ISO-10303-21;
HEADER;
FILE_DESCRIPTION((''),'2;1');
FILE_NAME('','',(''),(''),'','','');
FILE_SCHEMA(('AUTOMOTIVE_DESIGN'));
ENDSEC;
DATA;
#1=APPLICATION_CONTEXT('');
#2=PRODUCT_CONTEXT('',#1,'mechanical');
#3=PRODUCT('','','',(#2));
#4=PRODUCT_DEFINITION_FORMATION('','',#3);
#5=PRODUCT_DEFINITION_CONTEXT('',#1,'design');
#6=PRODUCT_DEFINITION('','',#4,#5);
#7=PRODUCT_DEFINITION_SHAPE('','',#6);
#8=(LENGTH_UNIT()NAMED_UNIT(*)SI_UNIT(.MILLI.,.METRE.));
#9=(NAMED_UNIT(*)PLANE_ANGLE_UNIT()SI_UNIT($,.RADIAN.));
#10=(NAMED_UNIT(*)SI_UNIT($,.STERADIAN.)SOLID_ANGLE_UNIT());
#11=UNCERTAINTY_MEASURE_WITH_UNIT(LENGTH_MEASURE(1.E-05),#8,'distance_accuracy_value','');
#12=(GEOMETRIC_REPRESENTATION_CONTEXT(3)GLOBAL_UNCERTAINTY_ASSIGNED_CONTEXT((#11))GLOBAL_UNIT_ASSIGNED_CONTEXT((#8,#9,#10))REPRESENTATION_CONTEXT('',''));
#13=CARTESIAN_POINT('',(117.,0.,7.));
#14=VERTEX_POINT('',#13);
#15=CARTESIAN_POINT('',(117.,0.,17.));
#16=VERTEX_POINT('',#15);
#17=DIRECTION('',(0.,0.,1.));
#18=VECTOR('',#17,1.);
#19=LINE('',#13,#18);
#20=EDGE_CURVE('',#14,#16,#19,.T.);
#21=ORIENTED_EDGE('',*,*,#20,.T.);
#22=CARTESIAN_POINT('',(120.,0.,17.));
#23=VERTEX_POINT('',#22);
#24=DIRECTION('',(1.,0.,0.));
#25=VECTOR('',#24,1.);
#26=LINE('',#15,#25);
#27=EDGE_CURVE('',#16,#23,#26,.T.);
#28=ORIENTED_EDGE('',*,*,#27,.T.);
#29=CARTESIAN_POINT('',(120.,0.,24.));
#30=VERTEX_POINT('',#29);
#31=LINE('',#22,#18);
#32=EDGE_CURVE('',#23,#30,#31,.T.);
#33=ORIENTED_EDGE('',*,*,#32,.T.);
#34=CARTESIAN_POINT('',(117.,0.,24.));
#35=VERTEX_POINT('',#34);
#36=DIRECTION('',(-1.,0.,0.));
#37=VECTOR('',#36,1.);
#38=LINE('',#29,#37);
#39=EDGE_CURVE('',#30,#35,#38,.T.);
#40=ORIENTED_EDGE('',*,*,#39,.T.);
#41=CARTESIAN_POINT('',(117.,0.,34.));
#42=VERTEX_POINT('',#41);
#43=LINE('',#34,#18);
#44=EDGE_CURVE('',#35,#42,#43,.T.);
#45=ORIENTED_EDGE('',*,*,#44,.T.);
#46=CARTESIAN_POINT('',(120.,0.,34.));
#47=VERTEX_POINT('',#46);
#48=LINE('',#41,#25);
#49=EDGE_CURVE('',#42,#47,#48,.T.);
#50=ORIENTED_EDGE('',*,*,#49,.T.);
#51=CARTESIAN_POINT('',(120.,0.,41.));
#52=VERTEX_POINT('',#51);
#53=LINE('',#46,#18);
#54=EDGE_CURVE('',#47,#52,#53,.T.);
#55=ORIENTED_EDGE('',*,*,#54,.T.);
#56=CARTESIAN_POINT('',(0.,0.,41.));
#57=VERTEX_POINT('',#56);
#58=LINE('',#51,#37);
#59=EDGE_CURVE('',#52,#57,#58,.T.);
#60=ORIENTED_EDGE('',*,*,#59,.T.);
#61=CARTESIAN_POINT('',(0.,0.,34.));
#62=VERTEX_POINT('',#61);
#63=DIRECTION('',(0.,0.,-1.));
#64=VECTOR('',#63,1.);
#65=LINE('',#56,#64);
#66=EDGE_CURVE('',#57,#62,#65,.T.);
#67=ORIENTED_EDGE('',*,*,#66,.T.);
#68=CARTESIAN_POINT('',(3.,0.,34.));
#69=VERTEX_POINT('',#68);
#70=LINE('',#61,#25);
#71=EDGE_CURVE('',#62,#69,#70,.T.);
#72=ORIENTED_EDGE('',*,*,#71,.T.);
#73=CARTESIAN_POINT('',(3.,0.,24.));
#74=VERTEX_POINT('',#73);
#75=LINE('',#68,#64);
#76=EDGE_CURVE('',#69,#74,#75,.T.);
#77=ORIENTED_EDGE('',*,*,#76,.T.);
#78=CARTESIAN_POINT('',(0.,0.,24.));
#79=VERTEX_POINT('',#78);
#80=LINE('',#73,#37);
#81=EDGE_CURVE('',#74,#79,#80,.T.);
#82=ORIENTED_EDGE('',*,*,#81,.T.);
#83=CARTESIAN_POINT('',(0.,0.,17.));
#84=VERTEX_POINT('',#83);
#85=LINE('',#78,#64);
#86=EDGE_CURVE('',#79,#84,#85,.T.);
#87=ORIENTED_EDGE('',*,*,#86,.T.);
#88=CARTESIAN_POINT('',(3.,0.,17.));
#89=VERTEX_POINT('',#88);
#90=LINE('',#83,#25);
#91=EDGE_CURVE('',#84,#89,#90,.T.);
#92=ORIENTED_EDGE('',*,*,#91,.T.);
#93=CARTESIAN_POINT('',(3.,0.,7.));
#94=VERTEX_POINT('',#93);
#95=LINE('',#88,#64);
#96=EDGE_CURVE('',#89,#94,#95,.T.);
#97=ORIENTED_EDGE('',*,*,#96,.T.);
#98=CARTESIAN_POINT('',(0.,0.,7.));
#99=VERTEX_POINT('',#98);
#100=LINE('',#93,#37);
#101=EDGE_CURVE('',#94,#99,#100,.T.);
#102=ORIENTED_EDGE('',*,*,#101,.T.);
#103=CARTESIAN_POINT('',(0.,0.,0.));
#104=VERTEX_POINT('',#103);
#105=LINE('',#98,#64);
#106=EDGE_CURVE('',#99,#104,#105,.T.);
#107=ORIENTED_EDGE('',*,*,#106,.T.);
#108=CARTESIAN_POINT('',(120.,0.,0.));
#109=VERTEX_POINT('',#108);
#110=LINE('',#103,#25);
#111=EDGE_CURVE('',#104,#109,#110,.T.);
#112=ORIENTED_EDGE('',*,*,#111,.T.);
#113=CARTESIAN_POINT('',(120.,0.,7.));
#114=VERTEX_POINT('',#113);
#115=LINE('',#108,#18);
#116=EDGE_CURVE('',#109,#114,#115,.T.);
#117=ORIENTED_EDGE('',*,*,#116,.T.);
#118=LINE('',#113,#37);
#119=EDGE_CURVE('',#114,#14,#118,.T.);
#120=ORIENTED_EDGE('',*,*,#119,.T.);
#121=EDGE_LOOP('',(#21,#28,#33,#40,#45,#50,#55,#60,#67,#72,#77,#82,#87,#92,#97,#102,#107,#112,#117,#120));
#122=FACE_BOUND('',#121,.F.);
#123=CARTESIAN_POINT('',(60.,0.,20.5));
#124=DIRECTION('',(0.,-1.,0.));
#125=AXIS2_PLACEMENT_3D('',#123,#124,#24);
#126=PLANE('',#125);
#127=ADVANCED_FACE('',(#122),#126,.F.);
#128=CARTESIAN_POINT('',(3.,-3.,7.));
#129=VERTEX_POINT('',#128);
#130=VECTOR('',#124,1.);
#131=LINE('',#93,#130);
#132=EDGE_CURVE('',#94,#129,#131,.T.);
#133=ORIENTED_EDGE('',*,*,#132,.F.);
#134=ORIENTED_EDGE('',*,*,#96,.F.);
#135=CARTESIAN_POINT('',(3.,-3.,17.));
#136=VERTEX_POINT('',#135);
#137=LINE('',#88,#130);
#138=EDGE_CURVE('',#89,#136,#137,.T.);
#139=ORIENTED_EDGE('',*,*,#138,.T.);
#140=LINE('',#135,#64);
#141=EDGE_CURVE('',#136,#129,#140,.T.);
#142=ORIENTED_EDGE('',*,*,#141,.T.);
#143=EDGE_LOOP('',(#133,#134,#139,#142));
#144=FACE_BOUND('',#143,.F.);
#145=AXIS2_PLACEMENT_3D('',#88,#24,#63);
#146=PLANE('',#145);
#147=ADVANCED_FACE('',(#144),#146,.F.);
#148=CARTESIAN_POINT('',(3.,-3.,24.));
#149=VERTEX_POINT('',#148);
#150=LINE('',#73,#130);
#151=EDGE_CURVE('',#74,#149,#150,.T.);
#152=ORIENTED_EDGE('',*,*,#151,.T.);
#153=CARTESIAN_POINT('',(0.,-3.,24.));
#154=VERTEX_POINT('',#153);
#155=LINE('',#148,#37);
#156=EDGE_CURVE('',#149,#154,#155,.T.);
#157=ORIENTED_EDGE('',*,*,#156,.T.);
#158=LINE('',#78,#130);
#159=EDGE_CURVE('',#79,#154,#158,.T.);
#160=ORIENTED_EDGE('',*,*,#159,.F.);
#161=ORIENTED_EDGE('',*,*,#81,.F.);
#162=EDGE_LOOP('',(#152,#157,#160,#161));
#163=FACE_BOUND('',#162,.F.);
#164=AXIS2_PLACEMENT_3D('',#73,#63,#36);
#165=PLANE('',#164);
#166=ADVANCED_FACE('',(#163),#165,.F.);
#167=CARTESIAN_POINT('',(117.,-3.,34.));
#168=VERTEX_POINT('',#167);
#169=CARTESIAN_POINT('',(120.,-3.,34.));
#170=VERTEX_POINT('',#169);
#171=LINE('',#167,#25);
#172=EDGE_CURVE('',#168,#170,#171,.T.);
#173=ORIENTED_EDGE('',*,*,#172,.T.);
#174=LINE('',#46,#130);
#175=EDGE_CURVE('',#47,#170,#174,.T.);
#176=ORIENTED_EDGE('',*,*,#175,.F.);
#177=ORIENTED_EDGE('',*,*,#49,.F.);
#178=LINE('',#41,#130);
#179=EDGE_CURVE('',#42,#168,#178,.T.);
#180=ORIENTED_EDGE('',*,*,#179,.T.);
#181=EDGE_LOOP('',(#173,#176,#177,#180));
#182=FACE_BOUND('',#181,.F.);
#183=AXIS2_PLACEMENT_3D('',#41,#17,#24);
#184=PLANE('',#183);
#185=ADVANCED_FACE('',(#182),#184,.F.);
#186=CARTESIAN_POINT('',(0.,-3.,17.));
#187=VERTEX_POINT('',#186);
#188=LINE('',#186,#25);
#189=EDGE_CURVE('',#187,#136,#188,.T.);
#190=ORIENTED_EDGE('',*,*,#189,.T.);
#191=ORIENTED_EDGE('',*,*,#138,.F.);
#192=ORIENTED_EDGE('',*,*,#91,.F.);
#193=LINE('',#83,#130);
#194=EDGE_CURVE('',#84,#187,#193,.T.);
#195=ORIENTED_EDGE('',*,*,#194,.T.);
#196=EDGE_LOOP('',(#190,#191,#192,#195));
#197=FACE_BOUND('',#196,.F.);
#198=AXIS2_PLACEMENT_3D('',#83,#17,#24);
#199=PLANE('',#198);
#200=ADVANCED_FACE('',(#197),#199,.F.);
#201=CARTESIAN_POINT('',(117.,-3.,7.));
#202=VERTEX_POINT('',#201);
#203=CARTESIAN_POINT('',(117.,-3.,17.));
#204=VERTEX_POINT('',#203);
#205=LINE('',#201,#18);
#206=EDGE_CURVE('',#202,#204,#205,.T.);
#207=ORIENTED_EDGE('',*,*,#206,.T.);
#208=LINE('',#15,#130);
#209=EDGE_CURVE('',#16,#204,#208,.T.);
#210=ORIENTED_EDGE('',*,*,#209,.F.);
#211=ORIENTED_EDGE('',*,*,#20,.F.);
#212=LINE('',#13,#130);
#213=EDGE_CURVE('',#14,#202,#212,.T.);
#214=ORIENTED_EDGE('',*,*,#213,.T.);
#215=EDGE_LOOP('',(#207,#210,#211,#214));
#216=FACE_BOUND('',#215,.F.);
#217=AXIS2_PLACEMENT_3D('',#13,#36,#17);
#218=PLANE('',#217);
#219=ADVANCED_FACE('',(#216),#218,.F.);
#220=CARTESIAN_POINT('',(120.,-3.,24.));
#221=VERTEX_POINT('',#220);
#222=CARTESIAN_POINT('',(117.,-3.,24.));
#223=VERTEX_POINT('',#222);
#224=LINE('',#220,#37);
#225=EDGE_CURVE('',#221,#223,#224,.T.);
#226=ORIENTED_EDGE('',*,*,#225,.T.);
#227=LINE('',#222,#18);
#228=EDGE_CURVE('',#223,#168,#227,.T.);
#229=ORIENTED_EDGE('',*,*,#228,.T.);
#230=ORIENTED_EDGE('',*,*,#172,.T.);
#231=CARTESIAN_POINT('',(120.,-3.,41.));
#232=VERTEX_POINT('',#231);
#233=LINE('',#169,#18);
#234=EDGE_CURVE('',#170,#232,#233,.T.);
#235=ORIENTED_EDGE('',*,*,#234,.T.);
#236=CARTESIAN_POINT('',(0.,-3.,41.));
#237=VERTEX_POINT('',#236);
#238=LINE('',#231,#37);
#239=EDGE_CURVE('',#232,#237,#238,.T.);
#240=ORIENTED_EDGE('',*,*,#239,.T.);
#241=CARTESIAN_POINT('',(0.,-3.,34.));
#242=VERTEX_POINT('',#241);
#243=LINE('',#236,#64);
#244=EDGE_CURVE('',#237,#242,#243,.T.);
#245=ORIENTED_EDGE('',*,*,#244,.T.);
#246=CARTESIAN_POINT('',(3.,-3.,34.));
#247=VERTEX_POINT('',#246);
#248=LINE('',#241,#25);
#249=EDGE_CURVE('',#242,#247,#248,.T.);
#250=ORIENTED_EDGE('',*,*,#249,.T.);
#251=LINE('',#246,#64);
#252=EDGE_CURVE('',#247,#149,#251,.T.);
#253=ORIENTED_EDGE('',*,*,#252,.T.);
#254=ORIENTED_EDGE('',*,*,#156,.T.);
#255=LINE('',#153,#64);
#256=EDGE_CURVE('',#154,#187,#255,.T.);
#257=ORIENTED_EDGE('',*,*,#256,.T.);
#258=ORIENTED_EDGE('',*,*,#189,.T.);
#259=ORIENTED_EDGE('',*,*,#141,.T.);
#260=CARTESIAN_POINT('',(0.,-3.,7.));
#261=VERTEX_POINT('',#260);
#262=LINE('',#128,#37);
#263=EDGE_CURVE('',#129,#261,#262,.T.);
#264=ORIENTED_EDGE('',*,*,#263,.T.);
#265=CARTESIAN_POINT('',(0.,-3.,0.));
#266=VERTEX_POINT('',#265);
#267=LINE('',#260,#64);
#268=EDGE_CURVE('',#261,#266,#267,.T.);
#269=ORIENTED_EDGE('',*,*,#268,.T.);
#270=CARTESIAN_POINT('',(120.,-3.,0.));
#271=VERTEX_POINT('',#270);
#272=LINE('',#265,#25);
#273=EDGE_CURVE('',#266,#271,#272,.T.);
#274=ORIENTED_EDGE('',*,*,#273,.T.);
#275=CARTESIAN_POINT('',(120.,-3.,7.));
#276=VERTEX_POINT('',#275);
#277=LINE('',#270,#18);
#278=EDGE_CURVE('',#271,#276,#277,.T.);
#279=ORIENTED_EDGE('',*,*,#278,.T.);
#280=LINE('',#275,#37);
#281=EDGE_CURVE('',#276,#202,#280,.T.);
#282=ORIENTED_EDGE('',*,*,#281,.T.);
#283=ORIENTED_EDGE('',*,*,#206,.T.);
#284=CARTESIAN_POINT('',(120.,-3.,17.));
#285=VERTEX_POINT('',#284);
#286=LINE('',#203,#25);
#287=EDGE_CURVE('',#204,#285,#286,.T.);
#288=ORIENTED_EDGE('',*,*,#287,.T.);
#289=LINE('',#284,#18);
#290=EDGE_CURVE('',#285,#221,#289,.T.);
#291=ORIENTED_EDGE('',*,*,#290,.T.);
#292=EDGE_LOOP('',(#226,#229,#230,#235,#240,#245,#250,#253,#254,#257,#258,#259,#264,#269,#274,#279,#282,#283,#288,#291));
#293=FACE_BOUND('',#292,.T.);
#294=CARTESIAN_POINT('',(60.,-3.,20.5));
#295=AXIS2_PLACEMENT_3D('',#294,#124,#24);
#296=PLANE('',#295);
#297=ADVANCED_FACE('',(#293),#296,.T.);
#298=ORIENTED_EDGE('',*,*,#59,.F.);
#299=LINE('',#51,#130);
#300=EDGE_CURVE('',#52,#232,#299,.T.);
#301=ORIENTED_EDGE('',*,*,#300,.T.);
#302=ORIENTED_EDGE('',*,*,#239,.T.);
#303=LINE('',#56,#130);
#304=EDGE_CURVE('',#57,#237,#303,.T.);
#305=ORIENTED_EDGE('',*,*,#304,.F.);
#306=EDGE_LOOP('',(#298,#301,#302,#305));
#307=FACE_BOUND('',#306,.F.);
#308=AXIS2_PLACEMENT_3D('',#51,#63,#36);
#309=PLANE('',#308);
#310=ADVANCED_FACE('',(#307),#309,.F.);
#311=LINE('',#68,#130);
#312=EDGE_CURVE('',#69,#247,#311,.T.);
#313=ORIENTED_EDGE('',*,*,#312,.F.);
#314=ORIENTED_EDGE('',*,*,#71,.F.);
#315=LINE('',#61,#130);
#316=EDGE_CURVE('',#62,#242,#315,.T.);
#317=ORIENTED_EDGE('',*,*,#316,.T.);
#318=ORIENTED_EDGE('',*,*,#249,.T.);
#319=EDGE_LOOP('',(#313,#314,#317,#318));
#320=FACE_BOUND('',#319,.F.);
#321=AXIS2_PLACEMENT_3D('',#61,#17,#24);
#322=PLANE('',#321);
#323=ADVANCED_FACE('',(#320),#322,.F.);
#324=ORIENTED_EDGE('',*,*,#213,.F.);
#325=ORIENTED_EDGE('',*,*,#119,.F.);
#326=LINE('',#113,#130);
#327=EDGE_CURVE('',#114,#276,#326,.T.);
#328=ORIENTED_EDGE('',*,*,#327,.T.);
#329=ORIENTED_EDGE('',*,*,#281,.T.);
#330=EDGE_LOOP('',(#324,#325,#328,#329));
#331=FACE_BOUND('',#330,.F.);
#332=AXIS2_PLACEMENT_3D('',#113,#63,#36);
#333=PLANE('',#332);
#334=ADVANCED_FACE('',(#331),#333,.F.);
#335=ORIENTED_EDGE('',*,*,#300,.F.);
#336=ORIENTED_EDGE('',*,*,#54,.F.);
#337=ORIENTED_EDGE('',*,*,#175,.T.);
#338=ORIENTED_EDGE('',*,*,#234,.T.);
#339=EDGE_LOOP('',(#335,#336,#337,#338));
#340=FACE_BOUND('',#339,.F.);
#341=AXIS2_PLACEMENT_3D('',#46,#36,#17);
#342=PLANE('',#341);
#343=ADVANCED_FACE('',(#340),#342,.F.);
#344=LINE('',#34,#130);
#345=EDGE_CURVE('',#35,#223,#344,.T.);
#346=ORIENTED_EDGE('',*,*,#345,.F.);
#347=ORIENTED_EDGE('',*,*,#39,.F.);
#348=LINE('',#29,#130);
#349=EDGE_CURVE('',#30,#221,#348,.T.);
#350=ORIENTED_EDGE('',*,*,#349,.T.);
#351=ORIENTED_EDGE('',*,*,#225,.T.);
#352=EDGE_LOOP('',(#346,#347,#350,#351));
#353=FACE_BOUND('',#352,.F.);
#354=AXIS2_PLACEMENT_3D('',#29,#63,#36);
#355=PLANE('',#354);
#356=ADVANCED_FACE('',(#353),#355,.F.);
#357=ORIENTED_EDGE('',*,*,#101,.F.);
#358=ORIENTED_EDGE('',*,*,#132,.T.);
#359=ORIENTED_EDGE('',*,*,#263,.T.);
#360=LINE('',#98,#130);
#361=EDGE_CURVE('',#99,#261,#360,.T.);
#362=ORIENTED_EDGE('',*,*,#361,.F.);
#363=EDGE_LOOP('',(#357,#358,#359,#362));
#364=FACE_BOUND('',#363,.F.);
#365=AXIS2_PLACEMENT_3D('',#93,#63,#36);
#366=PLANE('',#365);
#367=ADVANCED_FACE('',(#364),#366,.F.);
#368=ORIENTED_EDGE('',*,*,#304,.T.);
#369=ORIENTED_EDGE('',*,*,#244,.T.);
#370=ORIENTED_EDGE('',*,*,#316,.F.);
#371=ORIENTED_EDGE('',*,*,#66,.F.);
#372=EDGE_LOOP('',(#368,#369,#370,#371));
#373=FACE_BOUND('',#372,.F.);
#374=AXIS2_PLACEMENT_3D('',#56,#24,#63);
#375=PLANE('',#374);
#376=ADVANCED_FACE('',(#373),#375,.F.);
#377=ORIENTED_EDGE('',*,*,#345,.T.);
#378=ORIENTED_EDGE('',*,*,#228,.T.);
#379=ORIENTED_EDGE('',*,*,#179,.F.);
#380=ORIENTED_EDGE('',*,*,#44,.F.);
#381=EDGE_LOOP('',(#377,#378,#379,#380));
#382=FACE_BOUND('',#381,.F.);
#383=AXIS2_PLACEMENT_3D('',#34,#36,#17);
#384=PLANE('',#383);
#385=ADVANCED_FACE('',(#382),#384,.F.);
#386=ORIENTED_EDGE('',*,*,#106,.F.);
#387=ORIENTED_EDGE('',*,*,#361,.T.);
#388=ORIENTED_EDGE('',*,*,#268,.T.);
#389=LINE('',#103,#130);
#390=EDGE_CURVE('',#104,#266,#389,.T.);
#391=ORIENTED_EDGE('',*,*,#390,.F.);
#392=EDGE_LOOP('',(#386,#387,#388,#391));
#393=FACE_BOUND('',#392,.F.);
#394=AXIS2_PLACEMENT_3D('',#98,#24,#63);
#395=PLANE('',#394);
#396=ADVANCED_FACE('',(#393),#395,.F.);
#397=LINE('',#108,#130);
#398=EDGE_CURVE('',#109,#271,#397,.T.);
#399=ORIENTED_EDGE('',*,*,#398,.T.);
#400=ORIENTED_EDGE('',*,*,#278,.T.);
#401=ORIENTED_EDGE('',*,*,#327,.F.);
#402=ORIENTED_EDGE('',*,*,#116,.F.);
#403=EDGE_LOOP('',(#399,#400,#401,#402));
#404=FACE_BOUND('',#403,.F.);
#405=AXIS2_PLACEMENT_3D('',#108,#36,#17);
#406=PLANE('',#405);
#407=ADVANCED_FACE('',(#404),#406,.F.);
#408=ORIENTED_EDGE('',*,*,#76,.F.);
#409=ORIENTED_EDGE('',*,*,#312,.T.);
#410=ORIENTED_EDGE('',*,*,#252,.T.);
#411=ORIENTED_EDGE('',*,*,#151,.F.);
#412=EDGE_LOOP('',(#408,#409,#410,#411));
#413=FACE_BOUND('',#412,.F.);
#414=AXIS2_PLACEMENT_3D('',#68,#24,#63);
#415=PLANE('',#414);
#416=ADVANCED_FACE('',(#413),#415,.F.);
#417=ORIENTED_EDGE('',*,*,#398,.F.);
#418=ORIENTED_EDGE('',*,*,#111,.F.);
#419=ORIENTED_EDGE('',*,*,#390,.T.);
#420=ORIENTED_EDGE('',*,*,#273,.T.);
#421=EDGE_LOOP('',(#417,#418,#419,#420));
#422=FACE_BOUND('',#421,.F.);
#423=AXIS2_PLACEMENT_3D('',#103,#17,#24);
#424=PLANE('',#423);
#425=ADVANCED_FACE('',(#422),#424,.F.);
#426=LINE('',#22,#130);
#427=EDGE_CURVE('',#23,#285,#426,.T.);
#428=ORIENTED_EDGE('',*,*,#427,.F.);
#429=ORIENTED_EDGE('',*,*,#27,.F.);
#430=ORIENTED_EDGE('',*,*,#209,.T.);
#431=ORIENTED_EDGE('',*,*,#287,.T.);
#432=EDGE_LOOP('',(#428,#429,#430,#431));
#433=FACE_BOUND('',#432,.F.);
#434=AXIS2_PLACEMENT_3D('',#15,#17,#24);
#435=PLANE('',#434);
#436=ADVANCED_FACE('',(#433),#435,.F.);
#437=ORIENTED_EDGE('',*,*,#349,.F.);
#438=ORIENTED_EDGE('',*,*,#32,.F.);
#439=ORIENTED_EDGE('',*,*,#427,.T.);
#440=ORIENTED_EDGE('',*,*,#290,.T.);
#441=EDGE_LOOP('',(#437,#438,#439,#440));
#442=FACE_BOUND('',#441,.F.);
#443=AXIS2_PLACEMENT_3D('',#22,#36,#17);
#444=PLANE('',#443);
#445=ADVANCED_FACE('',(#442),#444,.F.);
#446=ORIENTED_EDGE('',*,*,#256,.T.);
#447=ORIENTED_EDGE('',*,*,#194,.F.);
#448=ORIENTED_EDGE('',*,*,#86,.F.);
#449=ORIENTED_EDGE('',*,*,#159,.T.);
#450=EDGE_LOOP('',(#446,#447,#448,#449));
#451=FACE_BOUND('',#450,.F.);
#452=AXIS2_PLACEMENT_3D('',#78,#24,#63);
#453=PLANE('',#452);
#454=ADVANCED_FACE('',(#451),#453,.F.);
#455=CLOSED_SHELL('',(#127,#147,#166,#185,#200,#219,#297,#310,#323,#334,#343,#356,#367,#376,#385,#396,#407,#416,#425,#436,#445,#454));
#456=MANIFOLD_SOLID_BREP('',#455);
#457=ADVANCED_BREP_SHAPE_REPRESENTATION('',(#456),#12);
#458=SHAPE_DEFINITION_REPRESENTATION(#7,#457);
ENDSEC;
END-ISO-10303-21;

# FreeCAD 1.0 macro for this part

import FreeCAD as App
import Part
import Sketcher

V = App.Vector
Q = App.Units.Quantity

doc = App.newDocument("Part")
body = doc.addObject("PartDesign::Body", "Body")

# Sketch on XZ plane
sketch1 = body.newObject("Sketcher::SketchObject", "Sketch")
sketch1.AttachmentSupport = (doc.getObject("XZ_Plane"), [""])
sketch1.MapMode = "FlatFace"
sketch1.addGeometry(Part.LineSegment(V(0, 41, 0), V(0, 34, 0)), False)
sketch1.addGeometry(Part.LineSegment(V(0, 34, 0), V(3, 34, 0)), False)
sketch1.addGeometry(Part.LineSegment(V(3, 34, 0), V(3, 24, 0)), False)
sketch1.addGeometry(Part.LineSegment(V(3, 24, 0), V(0, 24, 0)), False)
sketch1.addGeometry(Part.LineSegment(V(0, 24, 0), V(0, 17, 0)), False)
sketch1.addGeometry(Part.LineSegment(V(0, 17, 0), V(3, 17, 0)), False)
sketch1.addGeometry(Part.LineSegment(V(3, 17, 0), V(3, 7, 0)), False)
sketch1.addGeometry(Part.LineSegment(V(3, 7, 0), V(0, 7, 0)), False)
sketch1.addGeometry(Part.LineSegment(V(0, 7, 0), V(0, 0, 0)), False)
sketch1.addGeometry(Part.LineSegment(V(0, 0, 0), V(120, 0, 0)), False)
sketch1.addGeometry(Part.LineSegment(V(120, 0, 0), V(120, 7, 0)), False)
sketch1.addGeometry(Part.LineSegment(V(120, 7, 0), V(117, 7, 0)), False)
sketch1.addGeometry(Part.LineSegment(V(117, 7, 0), V(117, 17, 0)), False)
sketch1.addGeometry(Part.LineSegment(V(117, 17, 0), V(120, 17, 0)), False)
sketch1.addGeometry(Part.LineSegment(V(120, 17, 0), V(120, 24, 0)), False)
sketch1.addGeometry(Part.LineSegment(V(120, 24, 0), V(117, 24, 0)), False)
sketch1.addGeometry(Part.LineSegment(V(117, 24, 0), V(117, 34, 0)), False)
sketch1.addGeometry(Part.LineSegment(V(117, 34, 0), V(120, 34, 0)), False)
sketch1.addGeometry(Part.LineSegment(V(120, 34, 0), V(120, 41, 0)), False)
sketch1.addGeometry(Part.LineSegment(V(120, 41, 0), V(0, 41, 0)), False)
sketch1.addConstraint(Sketcher.Constraint("Coincident", 0, 2, 1, 1))
sketch1.addConstraint(Sketcher.Constraint("Coincident", 1, 2, 2, 1))
sketch1.addConstraint(Sketcher.Constraint("Coincident", 2, 2, 3, 1))
sketch1.addConstraint(Sketcher.Constraint("Coincident", 3, 2, 4, 1))
sketch1.addConstraint(Sketcher.Constraint("Coincident", 4, 2, 5, 1))
sketch1.addConstraint(Sketcher.Constraint("Coincident", 5, 2, 6, 1))
sketch1.addConstraint(Sketcher.Constraint("Coincident", 6, 2, 7, 1))
sketch1.addConstraint(Sketcher.Constraint("Coincident", 7, 2, 8, 1))
sketch1.addConstraint(Sketcher.Constraint("Coincident", 8, 2, 9, 1))
sketch1.addConstraint(Sketcher.Constraint("Coincident", 9, 2, 10, 1))
sketch1.addConstraint(Sketcher.Constraint("Coincident", 10, 2, 11, 1))
sketch1.addConstraint(Sketcher.Constraint("Coincident", 11, 2, 12, 1))
sketch1.addConstraint(Sketcher.Constraint("Coincident", 12, 2, 13, 1))
sketch1.addConstraint(Sketcher.Constraint("Coincident", 13, 2, 14, 1))
sketch1.addConstraint(Sketcher.Constraint("Coincident", 14, 2, 15, 1))
sketch1.addConstraint(Sketcher.Constraint("Coincident", 15, 2, 16, 1))
sketch1.addConstraint(Sketcher.Constraint("Coincident", 16, 2, 17, 1))
sketch1.addConstraint(Sketcher.Constraint("Coincident", 17, 2, 18, 1))
sketch1.addConstraint(Sketcher.Constraint("Coincident", 18, 2, 19, 1))
sketch1.addConstraint(Sketcher.Constraint("Coincident", 19, 2, 0, 1))
sketch1.addConstraint(Sketcher.Constraint("Vertical", 0))
sketch1.addConstraint(Sketcher.Constraint("Horizontal", 1))
sketch1.addConstraint(Sketcher.Constraint("Vertical", 2))
sketch1.addConstraint(Sketcher.Constraint("Horizontal", 3))
sketch1.addConstraint(Sketcher.Constraint("Vertical", 4))
sketch1.addConstraint(Sketcher.Constraint("Horizontal", 5))
sketch1.addConstraint(Sketcher.Constraint("Vertical", 6))
sketch1.addConstraint(Sketcher.Constraint("Horizontal", 7))
sketch1.addConstraint(Sketcher.Constraint("Vertical", 8))
sketch1.addConstraint(Sketcher.Constraint("Horizontal", 9))
sketch1.addConstraint(Sketcher.Constraint("Vertical", 10))
sketch1.addConstraint(Sketcher.Constraint("Horizontal", 11))
sketch1.addConstraint(Sketcher.Constraint("Vertical", 12))
sketch1.addConstraint(Sketcher.Constraint("Horizontal", 13))
sketch1.addConstraint(Sketcher.Constraint("Vertical", 14))
sketch1.addConstraint(Sketcher.Constraint("Horizontal", 15))
sketch1.addConstraint(Sketcher.Constraint("Vertical", 16))
sketch1.addConstraint(Sketcher.Constraint("Horizontal", 17))
sketch1.addConstraint(Sketcher.Constraint("Vertical", 18))
sketch1.addConstraint(Sketcher.Constraint("Horizontal", 19))
sketch1.addConstraint(Sketcher.Constraint("Coincident", 8, 2, -1, 1))
sketch1.addConstraint(Sketcher.Constraint("PointOnObject", 0, 2, -2))
sketch1.addConstraint(Sketcher.Constraint("PointOnObject", 3, 2, -2))
sketch1.addConstraint(Sketcher.Constraint("Horizontal", 7, 2, 10, 2))
sketch1.addConstraint(Sketcher.Constraint("Horizontal", 5, 2, 12, 2))
sketch1.addConstraint(Sketcher.Constraint("Horizontal", 3, 2, 14, 2))
sketch1.addConstraint(Sketcher.Constraint("Horizontal", 1, 2, 16, 2))
sketch1.addConstraint(Sketcher.Constraint("Vertical", 2, 2, 5, 2))
sketch1.addConstraint(Sketcher.Constraint("Vertical", 10, 2, 13, 2))
sketch1.addConstraint(Sketcher.Constraint("Vertical", 12, 2, 15, 2))
sketch1.addConstraint(Sketcher.Constraint("Vertical", 14, 2, 17, 2))
sketch1.addConstraint(Sketcher.Constraint("Equal", 7, 11))
sketch1.addConstraint(Sketcher.Constraint("Equal", 0, 4))
sketch1.addConstraint(Sketcher.Constraint("Equal", 2, 6))
sketch1.addConstraint(Sketcher.Constraint("Equal", 4, 8))
sketch1.addConstraint(Sketcher.Constraint("DistanceX", 1, 1, 1, 2, Q("3 mm")))
sketch1.addConstraint(Sketcher.Constraint("DistanceX", 9, 1, 9, 2, Q("120 mm")))
sketch1.addConstraint(Sketcher.Constraint("DistanceY", 0, 2, 0, 1, Q("7 mm")))
sketch1.addConstraint(Sketcher.Constraint("DistanceY", 2, 2, 2, 1, Q("10 mm")))
pad1 = body.newObject("PartDesign::Pad", "Pad")
pad1.Profile = sketch1
pad1.Length = 3

doc.recompute()
